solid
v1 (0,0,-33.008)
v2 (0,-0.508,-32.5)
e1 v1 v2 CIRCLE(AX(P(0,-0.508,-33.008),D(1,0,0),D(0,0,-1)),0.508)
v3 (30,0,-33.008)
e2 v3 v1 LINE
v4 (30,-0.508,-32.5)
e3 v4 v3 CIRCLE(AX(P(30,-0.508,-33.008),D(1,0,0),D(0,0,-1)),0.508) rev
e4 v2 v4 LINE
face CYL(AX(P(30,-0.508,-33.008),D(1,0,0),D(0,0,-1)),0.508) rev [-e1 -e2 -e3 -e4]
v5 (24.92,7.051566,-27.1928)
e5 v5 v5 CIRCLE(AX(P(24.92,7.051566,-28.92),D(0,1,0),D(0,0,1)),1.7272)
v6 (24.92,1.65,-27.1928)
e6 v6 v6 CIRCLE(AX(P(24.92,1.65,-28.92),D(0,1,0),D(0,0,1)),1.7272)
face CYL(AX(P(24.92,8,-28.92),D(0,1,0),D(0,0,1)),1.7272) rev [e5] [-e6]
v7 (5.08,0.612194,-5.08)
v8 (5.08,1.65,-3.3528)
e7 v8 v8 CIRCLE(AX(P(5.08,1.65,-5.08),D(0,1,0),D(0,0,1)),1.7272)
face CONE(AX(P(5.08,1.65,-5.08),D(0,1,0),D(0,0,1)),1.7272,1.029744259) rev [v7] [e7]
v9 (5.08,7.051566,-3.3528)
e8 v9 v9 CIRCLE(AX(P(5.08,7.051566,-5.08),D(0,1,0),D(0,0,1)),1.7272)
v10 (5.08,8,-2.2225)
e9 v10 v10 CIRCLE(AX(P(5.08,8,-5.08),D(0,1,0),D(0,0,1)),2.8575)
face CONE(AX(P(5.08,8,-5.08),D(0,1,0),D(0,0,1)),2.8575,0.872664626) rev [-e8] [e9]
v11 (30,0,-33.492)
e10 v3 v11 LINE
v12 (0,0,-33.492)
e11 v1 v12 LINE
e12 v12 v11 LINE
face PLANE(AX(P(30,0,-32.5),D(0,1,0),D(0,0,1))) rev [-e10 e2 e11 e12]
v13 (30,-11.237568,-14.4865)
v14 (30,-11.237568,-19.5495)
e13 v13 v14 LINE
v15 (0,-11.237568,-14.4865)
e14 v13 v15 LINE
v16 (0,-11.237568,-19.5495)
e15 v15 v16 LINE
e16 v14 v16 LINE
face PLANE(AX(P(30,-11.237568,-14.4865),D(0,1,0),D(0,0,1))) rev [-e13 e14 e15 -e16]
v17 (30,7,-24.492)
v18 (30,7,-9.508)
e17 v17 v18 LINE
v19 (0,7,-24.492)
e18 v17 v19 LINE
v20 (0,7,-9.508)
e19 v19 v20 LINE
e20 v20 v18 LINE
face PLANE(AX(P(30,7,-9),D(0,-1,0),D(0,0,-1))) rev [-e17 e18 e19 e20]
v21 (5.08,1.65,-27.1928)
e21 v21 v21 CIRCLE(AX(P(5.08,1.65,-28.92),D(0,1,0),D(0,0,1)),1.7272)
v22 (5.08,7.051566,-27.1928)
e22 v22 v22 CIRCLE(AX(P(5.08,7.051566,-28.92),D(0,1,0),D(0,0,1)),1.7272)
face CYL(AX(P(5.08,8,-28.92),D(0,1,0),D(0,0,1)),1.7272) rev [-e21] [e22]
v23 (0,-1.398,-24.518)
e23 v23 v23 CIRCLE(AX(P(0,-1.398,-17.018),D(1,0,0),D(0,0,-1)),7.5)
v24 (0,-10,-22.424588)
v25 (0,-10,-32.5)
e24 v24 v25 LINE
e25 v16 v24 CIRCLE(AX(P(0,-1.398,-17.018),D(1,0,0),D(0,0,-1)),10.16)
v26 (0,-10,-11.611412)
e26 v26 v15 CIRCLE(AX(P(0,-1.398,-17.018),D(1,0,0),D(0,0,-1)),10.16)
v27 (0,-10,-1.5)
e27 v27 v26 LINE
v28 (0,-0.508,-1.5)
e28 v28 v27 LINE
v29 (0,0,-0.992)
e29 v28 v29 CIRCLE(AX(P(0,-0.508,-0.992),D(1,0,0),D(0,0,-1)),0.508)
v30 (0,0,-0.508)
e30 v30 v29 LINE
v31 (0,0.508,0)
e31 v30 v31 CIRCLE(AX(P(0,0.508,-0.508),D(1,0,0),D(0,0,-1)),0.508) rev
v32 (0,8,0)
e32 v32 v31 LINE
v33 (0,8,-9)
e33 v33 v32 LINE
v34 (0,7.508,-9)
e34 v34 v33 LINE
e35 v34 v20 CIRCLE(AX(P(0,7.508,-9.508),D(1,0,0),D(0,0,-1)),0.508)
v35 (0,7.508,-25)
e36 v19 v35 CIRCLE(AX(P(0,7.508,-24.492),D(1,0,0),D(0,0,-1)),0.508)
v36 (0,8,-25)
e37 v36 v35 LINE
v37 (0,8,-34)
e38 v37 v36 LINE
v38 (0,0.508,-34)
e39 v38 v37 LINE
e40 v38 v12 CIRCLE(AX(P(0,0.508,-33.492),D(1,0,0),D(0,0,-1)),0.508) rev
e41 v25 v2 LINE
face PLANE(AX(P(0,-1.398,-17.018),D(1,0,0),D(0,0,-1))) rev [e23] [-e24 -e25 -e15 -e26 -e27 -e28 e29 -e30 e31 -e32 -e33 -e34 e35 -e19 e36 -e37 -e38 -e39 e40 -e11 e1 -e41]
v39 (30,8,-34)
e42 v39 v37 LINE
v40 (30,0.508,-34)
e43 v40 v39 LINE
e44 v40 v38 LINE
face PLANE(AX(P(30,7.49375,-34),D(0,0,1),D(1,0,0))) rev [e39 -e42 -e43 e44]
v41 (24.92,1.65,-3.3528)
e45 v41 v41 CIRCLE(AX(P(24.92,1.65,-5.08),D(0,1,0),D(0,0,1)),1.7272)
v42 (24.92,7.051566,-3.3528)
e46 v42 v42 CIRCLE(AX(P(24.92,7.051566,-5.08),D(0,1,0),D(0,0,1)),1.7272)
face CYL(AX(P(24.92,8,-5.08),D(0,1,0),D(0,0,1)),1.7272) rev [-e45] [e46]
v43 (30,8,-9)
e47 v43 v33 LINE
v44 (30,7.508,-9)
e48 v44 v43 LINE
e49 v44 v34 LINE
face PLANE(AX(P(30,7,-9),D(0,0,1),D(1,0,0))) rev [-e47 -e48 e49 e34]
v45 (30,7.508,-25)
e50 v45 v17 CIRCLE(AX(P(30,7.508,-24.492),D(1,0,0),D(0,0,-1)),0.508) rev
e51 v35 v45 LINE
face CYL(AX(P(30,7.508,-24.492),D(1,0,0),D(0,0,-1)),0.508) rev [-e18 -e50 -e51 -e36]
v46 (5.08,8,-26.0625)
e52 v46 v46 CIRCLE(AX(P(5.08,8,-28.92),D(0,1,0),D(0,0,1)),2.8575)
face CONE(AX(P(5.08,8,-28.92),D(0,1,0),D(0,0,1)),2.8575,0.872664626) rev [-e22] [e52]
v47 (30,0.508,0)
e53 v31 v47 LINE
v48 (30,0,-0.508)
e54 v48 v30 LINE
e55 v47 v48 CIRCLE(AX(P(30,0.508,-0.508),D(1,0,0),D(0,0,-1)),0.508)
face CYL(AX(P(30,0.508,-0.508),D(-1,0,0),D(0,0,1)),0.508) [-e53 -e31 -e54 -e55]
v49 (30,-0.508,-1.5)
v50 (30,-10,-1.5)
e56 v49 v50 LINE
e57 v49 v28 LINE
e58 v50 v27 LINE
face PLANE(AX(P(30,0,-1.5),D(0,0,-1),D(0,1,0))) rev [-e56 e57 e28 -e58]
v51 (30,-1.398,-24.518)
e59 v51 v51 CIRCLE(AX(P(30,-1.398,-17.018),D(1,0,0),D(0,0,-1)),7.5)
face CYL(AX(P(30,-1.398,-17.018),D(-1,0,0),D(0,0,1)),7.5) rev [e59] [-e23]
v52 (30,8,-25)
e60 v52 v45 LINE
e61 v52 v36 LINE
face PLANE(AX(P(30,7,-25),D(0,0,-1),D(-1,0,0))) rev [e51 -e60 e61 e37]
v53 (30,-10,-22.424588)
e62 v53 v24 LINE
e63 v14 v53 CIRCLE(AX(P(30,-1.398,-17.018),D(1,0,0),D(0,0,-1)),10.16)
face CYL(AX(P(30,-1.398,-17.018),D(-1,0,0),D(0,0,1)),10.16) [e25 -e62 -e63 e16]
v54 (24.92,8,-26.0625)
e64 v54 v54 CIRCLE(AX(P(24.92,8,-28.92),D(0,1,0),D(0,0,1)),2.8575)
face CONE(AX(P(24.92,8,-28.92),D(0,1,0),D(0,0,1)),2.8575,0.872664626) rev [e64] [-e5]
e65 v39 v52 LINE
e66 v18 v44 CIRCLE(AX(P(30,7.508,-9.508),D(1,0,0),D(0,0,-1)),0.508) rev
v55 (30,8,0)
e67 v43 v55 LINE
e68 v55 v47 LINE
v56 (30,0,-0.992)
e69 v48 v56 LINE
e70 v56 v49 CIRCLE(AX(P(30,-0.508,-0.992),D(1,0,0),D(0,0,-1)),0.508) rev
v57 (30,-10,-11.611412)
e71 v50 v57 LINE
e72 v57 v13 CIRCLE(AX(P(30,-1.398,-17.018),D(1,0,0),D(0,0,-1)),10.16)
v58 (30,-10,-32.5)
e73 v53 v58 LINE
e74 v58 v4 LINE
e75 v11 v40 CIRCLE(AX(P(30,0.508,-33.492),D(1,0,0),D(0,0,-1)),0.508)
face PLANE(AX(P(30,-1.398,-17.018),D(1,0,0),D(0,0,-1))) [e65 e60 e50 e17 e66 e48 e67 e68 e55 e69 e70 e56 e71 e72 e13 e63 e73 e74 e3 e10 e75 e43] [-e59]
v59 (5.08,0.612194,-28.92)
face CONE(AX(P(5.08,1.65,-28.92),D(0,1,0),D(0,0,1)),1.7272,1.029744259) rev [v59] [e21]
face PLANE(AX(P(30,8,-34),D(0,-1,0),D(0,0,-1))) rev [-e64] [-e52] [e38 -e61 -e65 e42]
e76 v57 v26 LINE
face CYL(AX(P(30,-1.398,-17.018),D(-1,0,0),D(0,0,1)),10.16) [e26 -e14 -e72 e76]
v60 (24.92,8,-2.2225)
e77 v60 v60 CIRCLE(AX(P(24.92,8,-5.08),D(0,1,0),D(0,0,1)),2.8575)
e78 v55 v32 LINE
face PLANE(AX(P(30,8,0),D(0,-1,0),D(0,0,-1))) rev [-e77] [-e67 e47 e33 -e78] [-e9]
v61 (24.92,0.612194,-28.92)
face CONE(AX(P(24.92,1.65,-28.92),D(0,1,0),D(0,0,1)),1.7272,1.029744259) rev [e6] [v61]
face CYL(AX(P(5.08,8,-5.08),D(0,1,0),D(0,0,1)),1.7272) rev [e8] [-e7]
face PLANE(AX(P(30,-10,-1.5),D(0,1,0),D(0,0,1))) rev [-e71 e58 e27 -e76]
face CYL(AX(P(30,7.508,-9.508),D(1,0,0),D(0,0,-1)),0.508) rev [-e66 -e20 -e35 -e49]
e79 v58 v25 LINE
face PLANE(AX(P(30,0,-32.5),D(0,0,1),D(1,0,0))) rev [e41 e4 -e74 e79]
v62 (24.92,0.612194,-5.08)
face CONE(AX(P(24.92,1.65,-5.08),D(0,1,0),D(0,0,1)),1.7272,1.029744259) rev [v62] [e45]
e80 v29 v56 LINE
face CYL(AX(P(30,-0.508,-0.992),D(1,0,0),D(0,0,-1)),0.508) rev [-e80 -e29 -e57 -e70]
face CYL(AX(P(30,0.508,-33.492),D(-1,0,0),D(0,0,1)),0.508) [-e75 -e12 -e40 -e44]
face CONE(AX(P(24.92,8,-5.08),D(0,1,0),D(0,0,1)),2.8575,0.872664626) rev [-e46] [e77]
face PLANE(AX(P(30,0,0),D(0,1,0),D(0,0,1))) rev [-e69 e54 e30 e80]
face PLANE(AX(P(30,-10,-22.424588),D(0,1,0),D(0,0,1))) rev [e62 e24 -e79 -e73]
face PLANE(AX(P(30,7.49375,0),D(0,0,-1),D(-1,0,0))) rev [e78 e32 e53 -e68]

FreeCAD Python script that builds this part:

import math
import FreeCAD as App
import Part
import Sketcher


def edges_at(feature, points):
    """Names of the edges that pass closest to the given points."""
    edges = feature.Shape.Edges
    near = lambda p: min(range(len(edges)), key=lambda i: edges[i].distToShape(Part.Vertex(*p))[0])
    return sorted({f"Edge{near(p) + 1}" for p in points})

doc = App.newDocument("Part")
params = doc.addObject("Spreadsheet::Sheet", "Params")
for row, (alias, value) in enumerate([
    ("sketch1_diameter", "15 mm"),
    ("sketch1_width", "8 mm"),
    ("sketch1_width2", "1 mm"),
    ("sketch1_width3", "10 mm"),
    ("sketch1_height", "9 mm"),
    ("pad1_length", "30 mm"),
    ("hole_diameter", "3.4544 mm"),
    ("hole_depth", "6.35 mm"),
    ("hole_csink_diameter", "5.715 mm"),
    ("fillet_radius", "0.508 mm"),
], start=1):
    params.set(f"A{row}", alias)
    params.set(f"B{row}", "=" + value)
    params.setAlias(f"B{row}", alias)

body = doc.addObject("PartDesign::Body", "Body")

sketch1 = doc.addObject("Sketcher::SketchObject", "Sketch")
body.addObject(sketch1)
sketch1.AttachmentSupport = (doc.YZ_Plane, [""])
sketch1.MapMode = "FlatFace"
sketch1.addGeometry(Part.LineSegment(App.Vector(0, -32.5, 0), App.Vector(0, -34, 0)), False)
sketch1.addGeometry(Part.LineSegment(App.Vector(0, -34, 0), App.Vector(8, -34, 0)), False)
sketch1.addGeometry(Part.LineSegment(App.Vector(8, -34, 0), App.Vector(8, -25, 0)), False)
sketch1.addGeometry(Part.LineSegment(App.Vector(8, -25, 0), App.Vector(7, -25, 0)), False)
sketch1.addGeometry(Part.LineSegment(App.Vector(7, -25, 0), App.Vector(7, -9, 0)), False)
sketch1.addGeometry(Part.LineSegment(App.Vector(7, -9, 0), App.Vector(8, -9, 0)), False)
sketch1.addGeometry(Part.LineSegment(App.Vector(8, -9, 0), App.Vector(8, 0, 0)), False)
sketch1.addGeometry(Part.LineSegment(App.Vector(8, 0, 0), App.Vector(0, 0, 0)), False)
sketch1.addGeometry(Part.LineSegment(App.Vector(0, 0, 0), App.Vector(0, -1.5, 0)), False)
sketch1.addGeometry(Part.LineSegment(App.Vector(0, -1.5, 0), App.Vector(-10, -1.5, 0)), False)
sketch1.addGeometry(Part.LineSegment(App.Vector(-10, -1.5, 0), App.Vector(-10, -11.6, 0)), False)
sketch1.addGeometry(Part.ArcOfCircle(Part.Circle(App.Vector(-1.4, -17, 0), App.Vector(0, 0, 1), 10.2), math.radians(147.85), math.radians(165.57)), False)
sketch1.addGeometry(Part.LineSegment(App.Vector(-11.2, -14.5, 0), App.Vector(-11.2, -19.5, 0)), False)
sketch1.addGeometry(Part.ArcOfCircle(Part.Circle(App.Vector(-1.4, -17, 0), App.Vector(0, 0, 1), 10.2), math.radians(-165.57), math.radians(-147.85)), False)
sketch1.addGeometry(Part.LineSegment(App.Vector(-10, -22.4, 0), App.Vector(-10, -32.5, 0)), False)
sketch1.addGeometry(Part.LineSegment(App.Vector(-10, -32.5, 0), App.Vector(0, -32.5, 0)), False)
sketch1.addGeometry(Part.Circle(App.Vector(-1.4, -17, 0), App.Vector(0, 0, 1), 7.5), False)
sketch1.addConstraint(Sketcher.Constraint("Coincident", 0, 2, 1, 1))
sketch1.addConstraint(Sketcher.Constraint("Coincident", 1, 2, 2, 1))
sketch1.addConstraint(Sketcher.Constraint("Coincident", 2, 2, 3, 1))
sketch1.addConstraint(Sketcher.Constraint("Coincident", 3, 2, 4, 1))
sketch1.addConstraint(Sketcher.Constraint("Coincident", 4, 2, 5, 1))
sketch1.addConstraint(Sketcher.Constraint("Coincident", 5, 2, 6, 1))
sketch1.addConstraint(Sketcher.Constraint("Coincident", 6, 2, 7, 1))
sketch1.addConstraint(Sketcher.Constraint("Coincident", 7, 2, 8, 1))
sketch1.addConstraint(Sketcher.Constraint("Coincident", 8, 2, 9, 1))
sketch1.addConstraint(Sketcher.Constraint("Coincident", 9, 2, 10, 1))
sketch1.addConstraint(Sketcher.Constraint("Coincident", 10, 2, 11, 1))
sketch1.addConstraint(Sketcher.Constraint("Coincident", 11, 2, 12, 1))
sketch1.addConstraint(Sketcher.Constraint("Coincident", 12, 2, 13, 1))
sketch1.addConstraint(Sketcher.Constraint("Coincident", 13, 2, 14, 1))
sketch1.addConstraint(Sketcher.Constraint("Coincident", 14, 2, 15, 1))
sketch1.addConstraint(Sketcher.Constraint("Coincident", 15, 2, 0, 1))
sketch1.addConstraint(Sketcher.Constraint("Vertical", 0))
sketch1.addConstraint(Sketcher.Constraint("Horizontal", 1))
sketch1.addConstraint(Sketcher.Constraint("Vertical", 2))
sketch1.addConstraint(Sketcher.Constraint("Horizontal", 3))
sketch1.addConstraint(Sketcher.Constraint("Vertical", 4))
sketch1.addConstraint(Sketcher.Constraint("Horizontal", 5))
sketch1.addConstraint(Sketcher.Constraint("Vertical", 6))
sketch1.addConstraint(Sketcher.Constraint("Horizontal", 7))
sketch1.addConstraint(Sketcher.Constraint("Vertical", 8))
sketch1.addConstraint(Sketcher.Constraint("Horizontal", 9))
sketch1.addConstraint(Sketcher.Constraint("Vertical", 10))
sketch1.addConstraint(Sketcher.Constraint("Vertical", 12))
sketch1.addConstraint(Sketcher.Constraint("Vertical", 14))
sketch1.addConstraint(Sketcher.Constraint("Horizontal", 15))
sketch1.addConstraint(Sketcher.Constraint("Coincident", 7, 2, -1, 1))
sketch1.addConstraint(Sketcher.Constraint("Coincident", 13, 3, 11, 3))
sketch1.addConstraint(Sketcher.Constraint("Coincident", 16, 3, 11, 3))
sketch1.addConstraint(Sketcher.Constraint("Equal", 11, 13))
sketch1.addConstraint(Sketcher.Constraint("PointOnObject", 0, 2, -2))
sketch1.addConstraint(Sketcher.Constraint("Vertical", 2, 2, 5, 2))
sketch1.addConstraint(Sketcher.Constraint("Vertical", 10, 2, 13, 2))
sketch1.addConstraint(Sketcher.Constraint("Equal", 2, 6))
sketch1.addConstraint(Sketcher.Constraint("Equal", 0, 8))
sketch1.addConstraint(Sketcher.Constraint("Diameter", 16, 15.0))
sketch1.addConstraint(Sketcher.Constraint("DistanceX", 1, 1, 1, 2, 8.0))
sketch1.addConstraint(Sketcher.Constraint("DistanceX", 3, 2, 3, 1, 1.0))
sketch1.addConstraint(Sketcher.Constraint("DistanceX", 9, 2, 9, 1, 10.0))
sketch1.addConstraint(Sketcher.Constraint("DistanceY", 2, 1, 2, 2, 9.0))
sketch1.addConstraint(Sketcher.Constraint("DistanceY", 4, 1, 4, 2, 16.0))
sketch1.addConstraint(Sketcher.Constraint("Radius", 11, 10.16))
sketch1.addConstraint(Sketcher.Constraint("DistanceY", 0, 2, 0, 1, 1.5))
sketch1.addConstraint(Sketcher.Constraint("DistanceY", 12, 2, 12, 1, 5.063))
sketch1.addConstraint(Sketcher.Constraint("DistanceX", 11, 3, -1, 1, 1.398))
sketch1.addConstraint(Sketcher.Constraint("DistanceY", 11, 3, -1, 1, 17.018))
sketch1.setExpression("Constraints[39]", "Params.sketch1_diameter")
sketch1.setExpression("Constraints[40]", "Params.sketch1_width")
sketch1.setExpression("Constraints[41]", "Params.sketch1_width2")
sketch1.setExpression("Constraints[42]", "Params.sketch1_width3")
sketch1.setExpression("Constraints[43]", "Params.sketch1_height")
pad1 = doc.addObject("PartDesign::Pad", "Pad")
body.addObject(pad1)
pad1.Profile = sketch1
pad1.setExpression("Length", "Params.pad1_length")

sketch2 = doc.addObject("Sketcher::SketchObject", "Sketch001")
body.addObject(sketch2)
sketch2.AttachmentSupport = (doc.XZ_Plane, [""])
sketch2.MapMode = "FlatFace"
sketch2.AttachmentOffset = App.Placement(App.Vector(0, 0, -8), App.Rotation())
sketch2.addGeometry(Part.Circle(App.Vector(5.1, -28.9, 0), App.Vector(0, 0, 1), 1.7), False)
sketch2.addGeometry(Part.Circle(App.Vector(24.9, -28.9, 0), App.Vector(0, 0, 1), 1.7), False)
sketch2.addGeometry(Part.Circle(App.Vector(24.9, -5.1, 0), App.Vector(0, 0, 1), 1.7), False)
sketch2.addGeometry(Part.Circle(App.Vector(5.1, -5.1, 0), App.Vector(0, 0, 1), 1.7), False)
sketch2.addConstraint(Sketcher.Constraint("Equal", 0, 1))
sketch2.addConstraint(Sketcher.Constraint("Equal", 1, 2))
sketch2.addConstraint(Sketcher.Constraint("Equal", 2, 3))
sketch2.addConstraint(Sketcher.Constraint("Horizontal", 0, 3, 1, 3))
sketch2.addConstraint(Sketcher.Constraint("Horizontal", 2, 3, 3, 3))
sketch2.addConstraint(Sketcher.Constraint("Vertical", 1, 3, 2, 3))
sketch2.addConstraint(Sketcher.Constraint("Vertical", 0, 3, 3, 3))
sketch2.addConstraint(Sketcher.Constraint("Diameter", 0, 3.4544))
sketch2.addConstraint(Sketcher.Constraint("DistanceX", -1, 1, 0, 3, 5.08))
sketch2.addConstraint(Sketcher.Constraint("DistanceY", 0, 3, -1, 1, 28.92))
sketch2.addConstraint(Sketcher.Constraint("DistanceX", -1, 1, 1, 3, 24.92))
sketch2.addConstraint(Sketcher.Constraint("DistanceY", 2, 3, -1, 1, 5.08))
doc.recompute()
hole = doc.addObject("PartDesign::Hole", "Hole")
body.addObject(hole)
hole.Profile = sketch2
hole.ThreadType = "None"
hole.setExpression("Diameter", "Params.hole_diameter")
hole.DepthType = "Dimension"
hole.setExpression("Depth", "Params.hole_depth")
hole.DrillPoint = "Angled"
hole.DrillPointAngle = 118
hole.HoleCutType = "Countersink"
hole.setExpression("HoleCutDiameter", "Params.hole_csink_diameter")
hole.HoleCutCountersinkAngle = 100
hole.Reversed = True
doc.recompute()

fillet = doc.addObject("PartDesign::Fillet", "Fillet")
body.addObject(fillet)
fillet.Base = (hole, edges_at(hole, [
    (15, 7, -9),
    (15, 7, -25),
    (15, 0, -34),
    (15, 0, -32.5),
    (15, 0, -1.5),
    (15, 0, 0),
]))
fillet.setExpression("Radius", "Params.fillet_radius")

doc.recompute()
